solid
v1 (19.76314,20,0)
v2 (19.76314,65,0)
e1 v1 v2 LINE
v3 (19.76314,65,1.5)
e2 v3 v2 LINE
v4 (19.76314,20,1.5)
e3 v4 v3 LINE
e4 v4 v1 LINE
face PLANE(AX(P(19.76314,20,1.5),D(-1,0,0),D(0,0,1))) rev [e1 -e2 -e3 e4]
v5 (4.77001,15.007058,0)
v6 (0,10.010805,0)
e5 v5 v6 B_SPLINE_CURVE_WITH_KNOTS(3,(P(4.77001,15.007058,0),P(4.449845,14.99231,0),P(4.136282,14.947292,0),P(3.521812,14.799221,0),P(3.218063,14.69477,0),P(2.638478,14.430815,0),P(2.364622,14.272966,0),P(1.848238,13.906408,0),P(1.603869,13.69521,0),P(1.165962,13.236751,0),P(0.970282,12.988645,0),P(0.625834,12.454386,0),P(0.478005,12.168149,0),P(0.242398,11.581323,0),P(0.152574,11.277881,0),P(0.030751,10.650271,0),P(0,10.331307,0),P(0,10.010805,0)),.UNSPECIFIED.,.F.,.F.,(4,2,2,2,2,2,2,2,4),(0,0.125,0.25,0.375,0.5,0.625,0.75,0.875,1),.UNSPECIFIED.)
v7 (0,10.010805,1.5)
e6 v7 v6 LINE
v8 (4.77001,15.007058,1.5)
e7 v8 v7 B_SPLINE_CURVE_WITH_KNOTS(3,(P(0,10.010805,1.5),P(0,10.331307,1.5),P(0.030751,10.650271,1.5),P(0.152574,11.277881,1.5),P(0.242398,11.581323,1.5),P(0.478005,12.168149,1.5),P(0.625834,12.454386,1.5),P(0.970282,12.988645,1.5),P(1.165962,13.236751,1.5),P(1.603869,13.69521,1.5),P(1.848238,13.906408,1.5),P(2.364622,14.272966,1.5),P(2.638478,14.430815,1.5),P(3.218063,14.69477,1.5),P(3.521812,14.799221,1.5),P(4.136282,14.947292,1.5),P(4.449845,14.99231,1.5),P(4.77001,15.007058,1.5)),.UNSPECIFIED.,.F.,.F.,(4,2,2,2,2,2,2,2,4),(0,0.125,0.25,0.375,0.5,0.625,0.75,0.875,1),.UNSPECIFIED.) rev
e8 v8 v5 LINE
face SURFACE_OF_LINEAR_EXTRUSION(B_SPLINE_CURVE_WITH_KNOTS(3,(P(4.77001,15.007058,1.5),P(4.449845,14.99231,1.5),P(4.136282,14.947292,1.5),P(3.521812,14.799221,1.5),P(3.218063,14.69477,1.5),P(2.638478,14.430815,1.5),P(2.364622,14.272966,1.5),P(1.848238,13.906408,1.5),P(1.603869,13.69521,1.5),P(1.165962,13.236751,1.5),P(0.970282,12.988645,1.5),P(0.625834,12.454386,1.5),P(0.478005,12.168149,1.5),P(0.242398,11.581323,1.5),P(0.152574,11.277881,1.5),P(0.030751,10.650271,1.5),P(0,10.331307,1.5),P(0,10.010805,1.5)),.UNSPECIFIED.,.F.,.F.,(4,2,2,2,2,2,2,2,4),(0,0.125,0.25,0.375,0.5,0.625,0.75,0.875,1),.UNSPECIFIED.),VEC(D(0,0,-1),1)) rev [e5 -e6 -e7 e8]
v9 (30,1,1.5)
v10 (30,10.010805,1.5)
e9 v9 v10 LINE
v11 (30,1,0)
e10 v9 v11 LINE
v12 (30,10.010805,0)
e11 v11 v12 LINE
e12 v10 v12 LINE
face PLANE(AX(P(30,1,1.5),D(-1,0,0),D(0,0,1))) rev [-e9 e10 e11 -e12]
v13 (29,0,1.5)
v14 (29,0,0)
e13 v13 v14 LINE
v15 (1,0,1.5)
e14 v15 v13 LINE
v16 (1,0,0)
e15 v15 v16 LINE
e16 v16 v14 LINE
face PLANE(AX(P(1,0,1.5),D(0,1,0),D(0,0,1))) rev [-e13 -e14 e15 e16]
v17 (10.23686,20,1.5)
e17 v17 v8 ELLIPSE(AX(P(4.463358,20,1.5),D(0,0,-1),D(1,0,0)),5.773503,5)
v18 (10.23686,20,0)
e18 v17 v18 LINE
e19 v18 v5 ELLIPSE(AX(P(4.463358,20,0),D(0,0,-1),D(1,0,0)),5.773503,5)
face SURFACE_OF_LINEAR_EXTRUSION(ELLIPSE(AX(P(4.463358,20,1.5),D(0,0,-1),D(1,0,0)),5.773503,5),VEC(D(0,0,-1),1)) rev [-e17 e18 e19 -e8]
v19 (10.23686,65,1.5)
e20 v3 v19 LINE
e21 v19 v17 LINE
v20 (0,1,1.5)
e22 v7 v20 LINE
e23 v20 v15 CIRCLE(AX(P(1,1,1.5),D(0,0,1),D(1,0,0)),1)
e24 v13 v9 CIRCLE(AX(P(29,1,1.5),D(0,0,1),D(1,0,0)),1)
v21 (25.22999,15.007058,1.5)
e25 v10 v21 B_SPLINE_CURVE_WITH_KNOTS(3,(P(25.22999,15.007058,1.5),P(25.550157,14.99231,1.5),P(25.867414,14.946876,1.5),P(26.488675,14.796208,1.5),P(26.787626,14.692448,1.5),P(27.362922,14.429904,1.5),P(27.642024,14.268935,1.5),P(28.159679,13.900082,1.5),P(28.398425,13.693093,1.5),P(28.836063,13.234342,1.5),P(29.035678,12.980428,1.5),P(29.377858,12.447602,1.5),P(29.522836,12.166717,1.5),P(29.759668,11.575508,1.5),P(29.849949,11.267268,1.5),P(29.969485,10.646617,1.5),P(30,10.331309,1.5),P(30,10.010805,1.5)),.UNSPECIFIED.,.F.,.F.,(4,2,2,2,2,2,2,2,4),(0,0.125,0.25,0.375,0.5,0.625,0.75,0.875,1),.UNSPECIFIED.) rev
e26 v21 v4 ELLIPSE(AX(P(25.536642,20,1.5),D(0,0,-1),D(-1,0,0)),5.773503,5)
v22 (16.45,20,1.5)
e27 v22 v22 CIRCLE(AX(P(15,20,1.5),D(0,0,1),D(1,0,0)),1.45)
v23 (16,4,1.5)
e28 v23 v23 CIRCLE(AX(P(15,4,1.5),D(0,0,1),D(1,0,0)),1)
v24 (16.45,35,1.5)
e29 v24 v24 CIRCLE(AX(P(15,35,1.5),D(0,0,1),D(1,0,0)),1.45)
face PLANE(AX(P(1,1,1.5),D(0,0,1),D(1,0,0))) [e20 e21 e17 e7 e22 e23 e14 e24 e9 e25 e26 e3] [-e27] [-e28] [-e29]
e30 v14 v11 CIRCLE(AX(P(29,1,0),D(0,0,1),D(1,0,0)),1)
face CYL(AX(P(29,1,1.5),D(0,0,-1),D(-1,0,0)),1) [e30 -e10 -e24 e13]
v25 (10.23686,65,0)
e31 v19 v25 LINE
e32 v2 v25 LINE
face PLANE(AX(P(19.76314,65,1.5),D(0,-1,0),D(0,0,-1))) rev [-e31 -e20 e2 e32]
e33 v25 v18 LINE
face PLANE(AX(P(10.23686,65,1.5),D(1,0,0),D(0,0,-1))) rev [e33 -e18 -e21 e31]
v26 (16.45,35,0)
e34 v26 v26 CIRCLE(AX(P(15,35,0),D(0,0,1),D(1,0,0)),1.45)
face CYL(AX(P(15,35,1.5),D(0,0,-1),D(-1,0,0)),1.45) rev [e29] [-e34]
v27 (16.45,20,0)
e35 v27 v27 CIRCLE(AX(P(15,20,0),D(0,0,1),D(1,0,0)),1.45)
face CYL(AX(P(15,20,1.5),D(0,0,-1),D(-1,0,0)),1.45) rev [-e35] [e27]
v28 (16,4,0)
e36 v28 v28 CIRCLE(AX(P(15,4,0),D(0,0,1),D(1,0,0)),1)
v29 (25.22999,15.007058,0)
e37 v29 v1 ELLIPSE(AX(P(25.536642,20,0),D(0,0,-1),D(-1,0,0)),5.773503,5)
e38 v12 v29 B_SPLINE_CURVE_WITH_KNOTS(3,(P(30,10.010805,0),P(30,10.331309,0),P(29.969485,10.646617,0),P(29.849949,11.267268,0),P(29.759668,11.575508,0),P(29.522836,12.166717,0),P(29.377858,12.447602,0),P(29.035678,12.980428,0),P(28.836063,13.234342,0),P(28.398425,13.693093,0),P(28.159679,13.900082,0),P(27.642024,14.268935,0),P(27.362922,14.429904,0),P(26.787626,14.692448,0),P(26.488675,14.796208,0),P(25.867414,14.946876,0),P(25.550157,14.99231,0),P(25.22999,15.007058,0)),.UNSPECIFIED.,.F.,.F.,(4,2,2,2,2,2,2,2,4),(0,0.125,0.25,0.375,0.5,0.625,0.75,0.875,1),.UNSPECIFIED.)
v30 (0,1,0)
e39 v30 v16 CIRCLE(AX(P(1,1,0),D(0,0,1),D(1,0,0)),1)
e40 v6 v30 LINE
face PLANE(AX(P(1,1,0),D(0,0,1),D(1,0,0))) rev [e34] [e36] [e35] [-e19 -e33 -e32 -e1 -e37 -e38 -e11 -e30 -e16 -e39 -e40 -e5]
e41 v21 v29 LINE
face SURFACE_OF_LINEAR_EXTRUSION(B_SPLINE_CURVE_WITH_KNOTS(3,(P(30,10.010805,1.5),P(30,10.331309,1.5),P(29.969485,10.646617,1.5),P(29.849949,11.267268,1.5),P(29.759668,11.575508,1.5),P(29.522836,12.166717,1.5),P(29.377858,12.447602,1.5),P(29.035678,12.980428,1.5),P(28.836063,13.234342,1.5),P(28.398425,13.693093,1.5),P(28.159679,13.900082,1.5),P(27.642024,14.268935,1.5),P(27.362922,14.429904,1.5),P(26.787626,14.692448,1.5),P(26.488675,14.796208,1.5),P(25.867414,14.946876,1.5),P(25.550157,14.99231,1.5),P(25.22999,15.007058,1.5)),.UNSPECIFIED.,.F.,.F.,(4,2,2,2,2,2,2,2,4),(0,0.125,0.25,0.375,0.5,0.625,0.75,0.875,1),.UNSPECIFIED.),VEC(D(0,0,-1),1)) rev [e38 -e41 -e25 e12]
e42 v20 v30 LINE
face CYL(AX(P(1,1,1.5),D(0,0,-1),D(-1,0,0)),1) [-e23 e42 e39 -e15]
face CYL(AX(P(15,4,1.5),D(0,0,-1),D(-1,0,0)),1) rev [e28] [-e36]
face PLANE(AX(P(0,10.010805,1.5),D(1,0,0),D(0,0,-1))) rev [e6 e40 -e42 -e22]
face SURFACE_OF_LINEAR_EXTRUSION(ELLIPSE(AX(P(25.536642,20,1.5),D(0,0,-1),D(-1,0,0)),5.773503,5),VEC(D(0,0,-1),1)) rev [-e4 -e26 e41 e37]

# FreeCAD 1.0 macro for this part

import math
import FreeCAD as App
import Part
import Sketcher

V = App.Vector
Q = App.Units.Quantity

doc = App.newDocument("Part")
params = doc.addObject("Spreadsheet::Sheet", "Params")
for row, (alias, value) in enumerate([
    ("sketch1_diameter", "2 mm"),
    ("sketch1_diameter2", "2.9 mm"),
    ("sketch1_height", "45 mm"),
    ("pad1_length", "1.5 mm"),
], start=1):
    params.set(f"A{row}", alias)
    params.set(f"B{row}", "=" + value)
    params.setAlias(f"B{row}", alias)

body = doc.addObject("PartDesign::Body", "Body")

sketch1 = body.newObject("Sketcher::SketchObject", "Sketch")
sketch1.AttachmentSupport = (doc.getObject("XY_Plane"), [""])
sketch1.MapMode = "FlatFace"
sketch1.addGeometry(Part.LineSegment(V(1, 0, 0), V(29, 0, 0)), False)
sketch1.addGeometry(Part.ArcOfCircle(Part.Circle(V(29, 1, 0), V(0, 0, 1), 1), math.radians(-90), math.radians(0)), False)
sketch1.addGeometry(Part.LineSegment(V(30, 1, 0), V(30, 10.010805, 0)), False)
sketch1.addGeometry(Part.BSplineCurve([V(30, 10.010805, 0), V(30, 10.331309, 0), V(29.969485, 10.646617, 0), V(29.849949, 11.267268, 0), V(29.759668, 11.575508, 0), V(29.522836, 12.166717, 0), V(29.377858, 12.447602, 0), V(29.035678, 12.980428, 0), V(28.836063, 13.234342, 0), V(28.398425, 13.693093, 0), V(28.159679, 13.900082, 0), V(27.642024, 14.268935, 0), V(27.362922, 14.429904, 0), V(26.787626, 14.692448, 0), V(26.488675, 14.796208, 0), V(25.867414, 14.946876, 0), V(25.550157, 14.99231, 0), V(25.22999, 15.007058, 0)], [4, 2, 2, 2, 2, 2, 2, 2, 4], [0, 0.125, 0.25, 0.375, 0.5, 0.625, 0.75, 0.875, 1], False, 3, [1, 1, 1, 1, 1, 1, 1, 1, 1, 1, 1, 1, 1, 1, 1, 1, 1, 1], False), False)
sketch1.addGeometry(Part.BSplineCurve([V(19.76314, 20, 0), V(19.76314, 15.258877, 0), V(25.22999, 15.007058, 0)], [3, 3], [0, 1.517657498], False, 2, [1, 0.725642413, 1], False), False)
sketch1.addGeometry(Part.LineSegment(V(19.76314, 20, 0), V(19.76314, 65, 0)), False)
sketch1.addGeometry(Part.LineSegment(V(19.76314, 65, 0), V(10.23686, 65, 0)), False)
sketch1.addGeometry(Part.LineSegment(V(10.23686, 65, 0), V(10.23686, 20, 0)), False)
sketch1.addGeometry(Part.BSplineCurve([V(4.77001, 15.007058, 0), V(10.23686, 15.258877, 0), V(10.23686, 20, 0)], [3, 3], [4.765527809, 6.283185307], False, 2, [1, 0.725642413, 1], False), False)
sketch1.addGeometry(Part.BSplineCurve([V(4.77001, 15.007058, 0), V(4.449845, 14.99231, 0), V(4.136282, 14.947292, 0), V(3.521812, 14.799221, 0), V(3.218063, 14.69477, 0), V(2.638478, 14.430815, 0), V(2.364622, 14.272966, 0), V(1.848238, 13.906408, 0), V(1.603869, 13.69521, 0), V(1.165962, 13.236751, 0), V(0.970282, 12.988645, 0), V(0.625834, 12.454386, 0), V(0.478005, 12.168149, 0), V(0.242398, 11.581323, 0), V(0.152574, 11.277881, 0), V(0.030751, 10.650271, 0), V(0, 10.331307, 0), V(0, 10.010805, 0)], [4, 2, 2, 2, 2, 2, 2, 2, 4], [0, 0.125, 0.25, 0.375, 0.5, 0.625, 0.75, 0.875, 1], False, 3, [1, 1, 1, 1, 1, 1, 1, 1, 1, 1, 1, 1, 1, 1, 1, 1, 1, 1], False), False)
sketch1.addGeometry(Part.LineSegment(V(0, 10.010805, 0), V(0, 1, 0)), False)
sketch1.addGeometry(Part.ArcOfCircle(Part.Circle(V(1, 1, 0), V(0, 0, 1), 1), math.radians(-180), math.radians(-90)), False)
sketch1.addGeometry(Part.Circle(V(15, 4, 0), V(0, 0, 1), 1), False)
sketch1.addGeometry(Part.Circle(V(15, 20, 0), V(0, 0, 1), 1.45), False)
sketch1.addGeometry(Part.Circle(V(15, 35, 0), V(0, 0, 1), 1.45), False)
sketch1.addConstraint(Sketcher.Constraint("Block", 3))
sketch1.addConstraint(Sketcher.Constraint("Block", 4))
sketch1.addConstraint(Sketcher.Constraint("Block", 8))
sketch1.addConstraint(Sketcher.Constraint("Block", 9))
sketch1.addConstraint(Sketcher.Constraint("Tangent", 0, 2, 1, 1))
sketch1.addConstraint(Sketcher.Constraint("Tangent", 1, 2, 2, 1))
sketch1.addConstraint(Sketcher.Constraint("Coincident", 2, 2, 3, 1))
sketch1.addConstraint(Sketcher.Constraint("Coincident", 4, 1, 5, 1))
sketch1.addConstraint(Sketcher.Constraint("Coincident", 5, 2, 6, 1))
sketch1.addConstraint(Sketcher.Constraint("Coincident", 6, 2, 7, 1))
sketch1.addConstraint(Sketcher.Constraint("Coincident", 7, 2, 8, 2))
sketch1.addConstraint(Sketcher.Constraint("Coincident", 9, 2, 10, 1))
sketch1.addConstraint(Sketcher.Constraint("Tangent", 10, 2, 11, 1))
sketch1.addConstraint(Sketcher.Constraint("Tangent", 11, 2, 0, 1))
sketch1.addConstraint(Sketcher.Constraint("Horizontal", 0))
sketch1.addConstraint(Sketcher.Constraint("Vertical", 2))
sketch1.addConstraint(Sketcher.Constraint("Vertical", 5))
sketch1.addConstraint(Sketcher.Constraint("Horizontal", 6))
sketch1.addConstraint(Sketcher.Constraint("Vertical", 7))
sketch1.addConstraint(Sketcher.Constraint("Vertical", 10))
sketch1.addConstraint(Sketcher.Constraint("Equal", 1, 11))
sketch1.addConstraint(Sketcher.Constraint("Equal", 11, 12))
sketch1.addConstraint(Sketcher.Constraint("Equal", 13, 14))
sketch1.addConstraint(Sketcher.Constraint("PointOnObject", 0, 2, -1))
sketch1.addConstraint(Sketcher.Constraint("Horizontal", 13, 3, 7, 2))
sketch1.addConstraint(Sketcher.Constraint("Vertical", 12, 3, 13, 3))
sketch1.addConstraint(Sketcher.Constraint("Vertical", 13, 3, 14, 3))
sketch1.addConstraint(Sketcher.Constraint("Diameter", 12, Q("2 mm")))
sketch1.addConstraint(Sketcher.Constraint("Diameter", 13, Q("2.9 mm")))
sketch1.addConstraint(Sketcher.Constraint("DistanceY", 5, 1, 5, 2, Q("45 mm")))
sketch1.addConstraint(Sketcher.Constraint("DistanceX", -1, 1, 12, 3, Q("15 mm")))
sketch1.addConstraint(Sketcher.Constraint("DistanceY", -1, 1, 12, 3, Q("4 mm")))
sketch1.addConstraint(Sketcher.Constraint("DistanceY", -1, 1, 14, 3, Q("35 mm")))
sketch1.setExpression("Constraints[27]", "Params.sketch1_diameter")
sketch1.setExpression("Constraints[28]", "Params.sketch1_diameter2")
sketch1.setExpression("Constraints[29]", "Params.sketch1_height")
pad1 = body.newObject("PartDesign::Pad", "Pad")
pad1.Profile = sketch1
pad1.setExpression("Length", "Params.pad1_length")

doc.recompute()
